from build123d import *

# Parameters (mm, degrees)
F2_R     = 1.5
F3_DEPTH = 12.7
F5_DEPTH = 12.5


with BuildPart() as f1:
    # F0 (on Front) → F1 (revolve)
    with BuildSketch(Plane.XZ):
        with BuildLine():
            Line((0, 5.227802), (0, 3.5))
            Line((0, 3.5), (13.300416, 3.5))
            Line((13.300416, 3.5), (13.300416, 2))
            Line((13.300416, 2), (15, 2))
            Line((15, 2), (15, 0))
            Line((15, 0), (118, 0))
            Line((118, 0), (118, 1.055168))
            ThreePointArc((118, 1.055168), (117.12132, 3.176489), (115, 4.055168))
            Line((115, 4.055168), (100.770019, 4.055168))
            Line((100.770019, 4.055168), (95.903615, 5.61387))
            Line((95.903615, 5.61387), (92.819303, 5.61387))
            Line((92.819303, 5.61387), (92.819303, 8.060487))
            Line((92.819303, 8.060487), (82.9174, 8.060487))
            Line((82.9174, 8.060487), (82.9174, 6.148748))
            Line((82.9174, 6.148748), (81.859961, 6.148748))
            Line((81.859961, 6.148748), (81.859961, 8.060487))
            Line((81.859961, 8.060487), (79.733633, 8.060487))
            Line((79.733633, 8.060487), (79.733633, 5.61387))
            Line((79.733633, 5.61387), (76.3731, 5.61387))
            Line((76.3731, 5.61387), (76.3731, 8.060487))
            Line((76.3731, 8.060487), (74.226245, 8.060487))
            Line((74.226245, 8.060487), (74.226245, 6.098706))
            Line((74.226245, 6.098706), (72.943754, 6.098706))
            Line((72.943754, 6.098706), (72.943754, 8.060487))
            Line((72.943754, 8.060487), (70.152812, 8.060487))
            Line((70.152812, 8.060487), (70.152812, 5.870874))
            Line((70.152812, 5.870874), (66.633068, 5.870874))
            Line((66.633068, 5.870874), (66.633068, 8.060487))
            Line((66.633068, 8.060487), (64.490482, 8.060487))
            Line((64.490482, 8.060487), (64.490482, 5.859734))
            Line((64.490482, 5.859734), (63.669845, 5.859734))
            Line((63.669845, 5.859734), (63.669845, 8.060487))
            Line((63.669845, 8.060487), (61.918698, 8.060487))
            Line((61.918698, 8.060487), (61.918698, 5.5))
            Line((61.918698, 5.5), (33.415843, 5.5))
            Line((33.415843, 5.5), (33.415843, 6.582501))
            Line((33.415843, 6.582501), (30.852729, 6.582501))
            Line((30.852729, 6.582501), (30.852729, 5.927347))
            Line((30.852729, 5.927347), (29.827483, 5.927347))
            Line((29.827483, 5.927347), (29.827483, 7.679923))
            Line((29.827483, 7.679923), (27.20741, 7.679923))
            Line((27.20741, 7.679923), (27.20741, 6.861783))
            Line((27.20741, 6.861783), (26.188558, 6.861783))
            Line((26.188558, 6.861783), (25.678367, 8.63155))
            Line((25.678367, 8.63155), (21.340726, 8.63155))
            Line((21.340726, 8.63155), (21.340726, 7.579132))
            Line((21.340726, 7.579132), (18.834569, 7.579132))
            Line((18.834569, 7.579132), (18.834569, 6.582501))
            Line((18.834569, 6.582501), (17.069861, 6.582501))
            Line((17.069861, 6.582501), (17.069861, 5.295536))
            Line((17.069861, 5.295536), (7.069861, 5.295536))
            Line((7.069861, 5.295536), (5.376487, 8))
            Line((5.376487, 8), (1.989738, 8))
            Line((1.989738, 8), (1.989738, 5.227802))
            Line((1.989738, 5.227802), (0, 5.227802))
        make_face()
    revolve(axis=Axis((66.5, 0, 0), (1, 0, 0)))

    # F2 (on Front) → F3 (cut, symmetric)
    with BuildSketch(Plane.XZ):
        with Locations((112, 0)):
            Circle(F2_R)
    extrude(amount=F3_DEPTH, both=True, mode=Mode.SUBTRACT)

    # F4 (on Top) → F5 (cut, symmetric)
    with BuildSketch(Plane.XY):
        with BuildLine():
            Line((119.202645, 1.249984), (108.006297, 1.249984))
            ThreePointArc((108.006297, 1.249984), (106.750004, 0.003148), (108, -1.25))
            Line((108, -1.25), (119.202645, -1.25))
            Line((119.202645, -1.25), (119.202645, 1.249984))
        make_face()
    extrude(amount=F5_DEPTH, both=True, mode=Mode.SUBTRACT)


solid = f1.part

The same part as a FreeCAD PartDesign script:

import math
import FreeCAD as App
import Part
import Sketcher

V = App.Vector
Q = App.Units.Quantity

doc = App.newDocument("Part")
params = doc.addObject("Spreadsheet::Sheet", "Params")
for row, (alias, value) in enumerate([
    ("sketch1_radius", "2.999999 mm"),
    ("sketch1_width", "103 mm"),
    ("sketch1_width2", "10 mm"),
    ("sketch1_height", "2 mm"),
    ("sketch1_height2", "1.5 mm"),
    ("revolution_angle", "360 deg"),
    ("sketch2_diameter", "3 mm"),
    ("pocket1_length", "25.4 mm"),
    ("sketch3_radius", "1.25 mm"),
    ("pocket2_length", "25 mm"),
], start=1):
    params.set(f"A{row}", alias)
    params.set(f"B{row}", "=" + value)
    params.setAlias(f"B{row}", alias)

body = doc.addObject("PartDesign::Body", "Body")

# Sketch on XZ plane
sketch1 = doc.addObject("Sketcher::SketchObject", "Sketch")
body.addObject(sketch1)
sketch1.AttachmentSupport = (doc.XZ_Plane, [""])
sketch1.MapMode = "FlatFace"
sketch1.addGeometry([
    Part.LineSegment(V(0, 5.227802, 0), V(0, 3.5, 0)),  # 0
    Part.LineSegment(V(0, 3.5, 0), V(13.300416, 3.5, 0)),  # 1
    Part.LineSegment(V(13.300416, 3.5, 0), V(13.300416, 2, 0)),  # 2
    Part.LineSegment(V(13.300416, 2, 0), V(15, 2, 0)),  # 3
    Part.LineSegment(V(15, 2, 0), V(15, 0, 0)),  # 4
    Part.LineSegment(V(15, 0, 0), V(118, 0, 0)),  # 5
    Part.LineSegment(V(118, 0, 0), V(118, 1.055168, 0)),  # 6
    Part.ArcOfCircle(Part.Circle(V(115.000001, 1.055169, 0), V(0, 0, 1), 2.999999), math.radians(-0.00001), math.radians(90.00001)),  # 7
    Part.LineSegment(V(115, 4.055168, 0), V(100.770019, 4.055168, 0)),  # 8
    Part.LineSegment(V(100.770019, 4.055168, 0), V(95.903615, 5.61387, 0)),  # 9
    Part.LineSegment(V(95.903615, 5.61387, 0), V(92.819303, 5.61387, 0)),  # 10
    Part.LineSegment(V(92.819303, 5.61387, 0), V(92.819303, 8.060487, 0)),  # 11
    Part.LineSegment(V(92.819303, 8.060487, 0), V(82.9174, 8.060487, 0)),  # 12
    Part.LineSegment(V(82.9174, 8.060487, 0), V(82.9174, 6.148748, 0)),  # 13
    Part.LineSegment(V(82.9174, 6.148748, 0), V(81.859961, 6.148748, 0)),  # 14
    Part.LineSegment(V(81.859961, 6.148748, 0), V(81.859961, 8.060487, 0)),  # 15
    Part.LineSegment(V(81.859961, 8.060487, 0), V(79.733633, 8.060487, 0)),  # 16
    Part.LineSegment(V(79.733633, 8.060487, 0), V(79.733633, 5.61387, 0)),  # 17
    Part.LineSegment(V(79.733633, 5.61387, 0), V(76.3731, 5.61387, 0)),  # 18
    Part.LineSegment(V(76.3731, 5.61387, 0), V(76.3731, 8.060487, 0)),  # 19
    Part.LineSegment(V(76.3731, 8.060487, 0), V(74.226245, 8.060487, 0)),  # 20
    Part.LineSegment(V(74.226245, 8.060487, 0), V(74.226245, 6.098706, 0)),  # 21
    Part.LineSegment(V(74.226245, 6.098706, 0), V(72.943754, 6.098706, 0)),  # 22
    Part.LineSegment(V(72.943754, 6.098706, 0), V(72.943754, 8.060487, 0)),  # 23
    Part.LineSegment(V(72.943754, 8.060487, 0), V(70.152812, 8.060487, 0)),  # 24
    Part.LineSegment(V(70.152812, 8.060487, 0), V(70.152812, 5.870874, 0)),  # 25
    Part.LineSegment(V(70.152812, 5.870874, 0), V(66.633068, 5.870874, 0)),  # 26
    Part.LineSegment(V(66.633068, 5.870874, 0), V(66.633068, 8.060487, 0)),  # 27
    Part.LineSegment(V(66.633068, 8.060487, 0), V(64.490482, 8.060487, 0)),  # 28
    Part.LineSegment(V(64.490482, 8.060487, 0), V(64.490482, 5.859734, 0)),  # 29
    Part.LineSegment(V(64.490482, 5.859734, 0), V(63.669845, 5.859734, 0)),  # 30
    Part.LineSegment(V(63.669845, 5.859734, 0), V(63.669845, 8.060487, 0)),  # 31
    Part.LineSegment(V(63.669845, 8.060487, 0), V(61.918698, 8.060487, 0)),  # 32
    Part.LineSegment(V(61.918698, 8.060487, 0), V(61.918698, 5.5, 0)),  # 33
    Part.LineSegment(V(61.918698, 5.5, 0), V(33.415843, 5.5, 0)),  # 34
    Part.LineSegment(V(33.415843, 5.5, 0), V(33.415843, 6.582501, 0)),  # 35
    Part.LineSegment(V(33.415843, 6.582501, 0), V(30.852729, 6.582501, 0)),  # 36
    Part.LineSegment(V(30.852729, 6.582501, 0), V(30.852729, 5.927347, 0)),  # 37
    Part.LineSegment(V(30.852729, 5.927347, 0), V(29.827483, 5.927347, 0)),  # 38
    Part.LineSegment(V(29.827483, 5.927347, 0), V(29.827483, 7.679923, 0)),  # 39
    Part.LineSegment(V(29.827483, 7.679923, 0), V(27.20741, 7.679923, 0)),  # 40
    Part.LineSegment(V(27.20741, 7.679923, 0), V(27.20741, 6.861783, 0)),  # 41
    Part.LineSegment(V(27.20741, 6.861783, 0), V(26.188558, 6.861783, 0)),  # 42
    Part.LineSegment(V(26.188558, 6.861783, 0), V(25.678367, 8.63155, 0)),  # 43
    Part.LineSegment(V(25.678367, 8.63155, 0), V(21.340726, 8.63155, 0)),  # 44
    Part.LineSegment(V(21.340726, 8.63155, 0), V(21.340726, 7.579132, 0)),  # 45
    Part.LineSegment(V(21.340726, 7.579132, 0), V(18.834569, 7.579132, 0)),  # 46
    Part.LineSegment(V(18.834569, 7.579132, 0), V(18.834569, 6.582501, 0)),  # 47
    Part.LineSegment(V(18.834569, 6.582501, 0), V(17.069861, 6.582501, 0)),  # 48
    Part.LineSegment(V(17.069861, 6.582501, 0), V(17.069861, 5.295536, 0)),  # 49
    Part.LineSegment(V(17.069861, 5.295536, 0), V(7.069861, 5.295536, 0)),  # 50
    Part.LineSegment(V(7.069861, 5.295536, 0), V(5.376487, 8, 0)),  # 51
    Part.LineSegment(V(5.376487, 8, 0), V(1.989738, 8, 0)),  # 52
    Part.LineSegment(V(1.989738, 8, 0), V(1.989738, 5.227802, 0)),  # 53
    Part.LineSegment(V(1.989738, 5.227802, 0), V(0, 5.227802, 0)),  # 54
], False)
sketch1.addConstraint([
    Sketcher.Constraint("Coincident", 0, 2, 1, 1),
    Sketcher.Constraint("Coincident", 1, 2, 2, 1),
    Sketcher.Constraint("Coincident", 2, 2, 3, 1),
    Sketcher.Constraint("Coincident", 3, 2, 4, 1),
    Sketcher.Constraint("Coincident", 4, 2, 5, 1),
    Sketcher.Constraint("Coincident", 5, 2, 6, 1),
    Sketcher.Constraint("Tangent", 6, 2, 7, 1),
    Sketcher.Constraint("Tangent", 7, 2, 8, 1),
    Sketcher.Constraint("Coincident", 8, 2, 9, 1),
    Sketcher.Constraint("Coincident", 9, 2, 10, 1),
    Sketcher.Constraint("Coincident", 10, 2, 11, 1),
    Sketcher.Constraint("Coincident", 11, 2, 12, 1),
    Sketcher.Constraint("Coincident", 12, 2, 13, 1),
    Sketcher.Constraint("Coincident", 13, 2, 14, 1),
    Sketcher.Constraint("Coincident", 14, 2, 15, 1),
    Sketcher.Constraint("Coincident", 15, 2, 16, 1),
    Sketcher.Constraint("Coincident", 16, 2, 17, 1),
    Sketcher.Constraint("Coincident", 17, 2, 18, 1),
    Sketcher.Constraint("Coincident", 18, 2, 19, 1),
    Sketcher.Constraint("Coincident", 19, 2, 20, 1),
    Sketcher.Constraint("Coincident", 20, 2, 21, 1),
    Sketcher.Constraint("Coincident", 21, 2, 22, 1),
    Sketcher.Constraint("Coincident", 22, 2, 23, 1),
    Sketcher.Constraint("Coincident", 23, 2, 24, 1),
    Sketcher.Constraint("Coincident", 24, 2, 25, 1),
    Sketcher.Constraint("Coincident", 25, 2, 26, 1),
    Sketcher.Constraint("Coincident", 26, 2, 27, 1),
    Sketcher.Constraint("Coincident", 27, 2, 28, 1),
    Sketcher.Constraint("Coincident", 28, 2, 29, 1),
    Sketcher.Constraint("Coincident", 29, 2, 30, 1),
    Sketcher.Constraint("Coincident", 30, 2, 31, 1),
    Sketcher.Constraint("Coincident", 31, 2, 32, 1),
    Sketcher.Constraint("Coincident", 32, 2, 33, 1),
    Sketcher.Constraint("Coincident", 33, 2, 34, 1),
    Sketcher.Constraint("Coincident", 34, 2, 35, 1),
    Sketcher.Constraint("Coincident", 35, 2, 36, 1),
    Sketcher.Constraint("Coincident", 36, 2, 37, 1),
    Sketcher.Constraint("Coincident", 37, 2, 38, 1),
    Sketcher.Constraint("Coincident", 38, 2, 39, 1),
    Sketcher.Constraint("Coincident", 39, 2, 40, 1),
    Sketcher.Constraint("Coincident", 40, 2, 41, 1),
    Sketcher.Constraint("Coincident", 41, 2, 42, 1),
    Sketcher.Constraint("Coincident", 42, 2, 43, 1),
    Sketcher.Constraint("Coincident", 43, 2, 44, 1),
    Sketcher.Constraint("Coincident", 44, 2, 45, 1),
    Sketcher.Constraint("Coincident", 45, 2, 46, 1),
    Sketcher.Constraint("Coincident", 46, 2, 47, 1),
    Sketcher.Constraint("Coincident", 47, 2, 48, 1),
    Sketcher.Constraint("Coincident", 48, 2, 49, 1),
    Sketcher.Constraint("Coincident", 49, 2, 50, 1),
    Sketcher.Constraint("Coincident", 50, 2, 51, 1),
    Sketcher.Constraint("Coincident", 51, 2, 52, 1),
    Sketcher.Constraint("Coincident", 52, 2, 53, 1),
    Sketcher.Constraint("Coincident", 53, 2, 54, 1),
    Sketcher.Constraint("Coincident", 54, 2, 0, 1),
    Sketcher.Constraint("Vertical", 0),
    Sketcher.Constraint("Horizontal", 1),
    Sketcher.Constraint("Vertical", 2),
    Sketcher.Constraint("Horizontal", 3),
    Sketcher.Constraint("Vertical", 4),
    Sketcher.Constraint("Horizontal", 5),
    Sketcher.Constraint("Vertical", 6),
    Sketcher.Constraint("Horizontal", 8),
    Sketcher.Constraint("Horizontal", 10),
    Sketcher.Constraint("Vertical", 11),
    Sketcher.Constraint("Horizontal", 12),
    Sketcher.Constraint("Vertical", 13),
    Sketcher.Constraint("Horizontal", 14),
    Sketcher.Constraint("Vertical", 15),
    Sketcher.Constraint("Horizontal", 16),
    Sketcher.Constraint("Vertical", 17),
    Sketcher.Constraint("Horizontal", 18),
    Sketcher.Constraint("Vertical", 19),
    Sketcher.Constraint("Horizontal", 20),
    Sketcher.Constraint("Vertical", 21),
    Sketcher.Constraint("Horizontal", 22),
    Sketcher.Constraint("Vertical", 23),
    Sketcher.Constraint("Horizontal", 24),
    Sketcher.Constraint("Vertical", 25),
    Sketcher.Constraint("Horizontal", 26),
    Sketcher.Constraint("Vertical", 27),
    Sketcher.Constraint("Horizontal", 28),
    Sketcher.Constraint("Vertical", 29),
    Sketcher.Constraint("Horizontal", 30),
    Sketcher.Constraint("Vertical", 31),
    Sketcher.Constraint("Horizontal", 32),
    Sketcher.Constraint("Vertical", 33),
    Sketcher.Constraint("Horizontal", 34),
    Sketcher.Constraint("Vertical", 35),
    Sketcher.Constraint("Horizontal", 36),
    Sketcher.Constraint("Vertical", 37),
    Sketcher.Constraint("Horizontal", 38),
    Sketcher.Constraint("Vertical", 39),
    Sketcher.Constraint("Horizontal", 40),
    Sketcher.Constraint("Vertical", 41),
    Sketcher.Constraint("Horizontal", 42),
    Sketcher.Constraint("Horizontal", 44),
    Sketcher.Constraint("Vertical", 45),
    Sketcher.Constraint("Horizontal", 46),
    Sketcher.Constraint("Vertical", 47),
    Sketcher.Constraint("Horizontal", 48),
    Sketcher.Constraint("Vertical", 49),
    Sketcher.Constraint("Horizontal", 50),
    Sketcher.Constraint("Horizontal", 52),
    Sketcher.Constraint("Vertical", 53),
    Sketcher.Constraint("Horizontal", 54),
    Sketcher.Constraint("PointOnObject", 0, 2, -2),
    Sketcher.Constraint("PointOnObject", 4, 2, -1),
    Sketcher.Constraint("Horizontal", 12, 2, 15, 2),
    Sketcher.Constraint("Horizontal", 10, 2, 17, 2),
    Sketcher.Constraint("Horizontal", 16, 2, 19, 2),
    Sketcher.Constraint("Horizontal", 20, 2, 23, 2),
    Sketcher.Constraint("Horizontal", 24, 2, 27, 2),
    Sketcher.Constraint("Horizontal", 28, 2, 31, 2),
    Sketcher.Constraint("Horizontal", 36, 2, 47, 2),
    Sketcher.Constraint("Radius", 7, Q("2.999999 mm")),
    Sketcher.Constraint("DistanceX", 5, 1, 5, 2, Q("103 mm")),
    Sketcher.Constraint("DistanceX", 50, 2, 50, 1, Q("10 mm")),
    Sketcher.Constraint("DistanceY", 4, 2, 4, 1, Q("2 mm")),
    Sketcher.Constraint("DistanceY", 2, 2, 2, 1, Q("1.5 mm")),
    Sketcher.Constraint("DistanceX", -1, 1, 7, 3, Q("115.000001 mm")),
    Sketcher.Constraint("DistanceY", -1, 1, 51, 2, Q("8 mm")),
    Sketcher.Constraint("DistanceY", 1, 2, 34, 2, Q("2 mm")),
    Sketcher.Constraint("DistanceY", 0, 2, 0, 1, Q("1.727802 mm")),
    Sketcher.Constraint("DistanceY", 35, 1, 35, 2, Q("1.082501 mm")),
    Sketcher.Constraint("DistanceX", 8, 2, 8, 1, Q("14.229981 mm")),
    Sketcher.Constraint("DistanceX", 10, 2, 10, 1, Q("3.084312 mm")),
    Sketcher.Constraint("DistanceX", 14, 2, 14, 1, Q("1.057439 mm")),
    Sketcher.Constraint("DistanceX", 16, 2, 16, 1, Q("2.126328 mm")),
    Sketcher.Constraint("DistanceX", 22, 2, 22, 1, Q("1.282491 mm")),
    Sketcher.Constraint("DistanceX", 42, 2, 42, 1, Q("1.018852 mm")),
    Sketcher.Constraint("DistanceX", 44, 2, 44, 1, Q("4.337641 mm")),
    Sketcher.Constraint("DistanceX", 52, 2, 52, 1, Q("3.386749 mm")),
    Sketcher.Constraint("DistanceY", 6, 1, 6, 2, Q("1.055168 mm")),
    Sketcher.Constraint("DistanceY", 13, 2, 13, 1, Q("1.911739 mm")),
    Sketcher.Constraint("DistanceY", 21, 2, 21, 1, Q("1.961781 mm")),
    Sketcher.Constraint("DistanceY", 41, 2, 41, 1, Q("0.81814 mm")),
    Sketcher.Constraint("DistanceY", 45, 2, 45, 1, Q("1.052418 mm")),
    Sketcher.Constraint("DistanceY", 47, 2, 47, 1, Q("0.996631 mm")),
    Sketcher.Constraint("DistanceX", -1, 1, 12, 2, Q("82.9174 mm")),
    Sketcher.Constraint("DistanceX", -1, 1, 18, 2, Q("76.3731 mm")),
    Sketcher.Constraint("DistanceY", 7, 3, 9, 2, Q("4.558701 mm")),
    Sketcher.Constraint("DistanceX", 46, 2, 43, 2, Q("6.843798 mm")),
    Sketcher.Constraint("Distance", 43, Q("1.841839 mm")),
    Sketcher.Constraint("Distance", 51, Q("3.190868 mm")),
    Sketcher.Constraint("DistanceX", 1, 1, 1, 2, Q("13.300416 mm")),
    Sketcher.Constraint("DistanceX", 12, 2, 12, 1, Q("9.901903 mm")),
    Sketcher.Constraint("DistanceX", 20, 2, 20, 1, Q("2.146855 mm")),
    Sketcher.Constraint("DistanceX", 24, 2, 24, 1, Q("2.790942 mm")),
    Sketcher.Constraint("DistanceX", 26, 2, 26, 1, Q("3.519744 mm")),
    Sketcher.Constraint("DistanceX", 28, 2, 28, 1, Q("2.142586 mm")),
    Sketcher.Constraint("DistanceX", 30, 2, 30, 1, Q("0.820637 mm")),
    Sketcher.Constraint("DistanceX", 32, 2, 32, 1, Q("1.751147 mm")),
    Sketcher.Constraint("DistanceX", 34, 2, 34, 1, Q("28.502855 mm")),
    Sketcher.Constraint("DistanceX", 36, 2, 36, 1, Q("2.563114 mm")),
    Sketcher.Constraint("DistanceX", 38, 2, 38, 1, Q("1.025246 mm")),
    Sketcher.Constraint("DistanceX", 40, 2, 40, 1, Q("2.620073 mm")),
    Sketcher.Constraint("DistanceX", 48, 2, 48, 1, Q("1.764708 mm")),
    Sketcher.Constraint("DistanceX", 54, 2, 54, 1, Q("1.989738 mm")),
    Sketcher.Constraint("DistanceY", 11, 1, 11, 2, Q("2.446617 mm")),
    Sketcher.Constraint("DistanceY", 25, 2, 25, 1, Q("2.189613 mm")),
    Sketcher.Constraint("DistanceY", 29, 2, 29, 1, Q("2.200753 mm")),
    Sketcher.Constraint("DistanceY", 37, 2, 37, 1, Q("0.655154 mm")),
    Sketcher.Constraint("DistanceY", 39, 1, 39, 2, Q("1.752576 mm")),
])
sketch1.setExpression("Constraints[115]", "Params.sketch1_radius")
sketch1.setExpression("Constraints[116]", "Params.sketch1_width")
sketch1.setExpression("Constraints[117]", "Params.sketch1_width2")
sketch1.setExpression("Constraints[118]", "Params.sketch1_height")
sketch1.setExpression("Constraints[119]", "Params.sketch1_height2")
revolution = doc.addObject("PartDesign::Revolution", "Revolution")
body.addObject(revolution)
revolution.Profile = sketch1
revolution.ReferenceAxis = (sketch1, ["H_Axis"])
revolution.setExpression("Angle", "Params.revolution_angle")

# Sketch on XZ plane
sketch2 = doc.addObject("Sketcher::SketchObject", "Sketch001")
body.addObject(sketch2)
sketch2.AttachmentSupport = (doc.XZ_Plane, [""])
sketch2.MapMode = "FlatFace"
sketch2.addGeometry(Part.Circle(V(112, 0, 0), V(0, 0, 1), 1.5), False)
sketch2.addConstraint([
    Sketcher.Constraint("PointOnObject", 0, 3, -1),
    Sketcher.Constraint("Diameter", 0, Q("3 mm")),
    Sketcher.Constraint("DistanceX", -1, 1, 0, 3, Q("112 mm")),
])
sketch2.setExpression("Constraints[1]", "Params.sketch2_diameter")
pocket1 = doc.addObject("PartDesign::Pocket", "Pocket")
body.addObject(pocket1)
pocket1.Profile = sketch2
pocket1.setExpression("Length", "Params.pocket1_length")
pocket1.Midplane = True

# Sketch on XY plane
sketch3 = doc.addObject("Sketcher::SketchObject", "Sketch002")
body.addObject(sketch3)
sketch3.AttachmentSupport = (doc.XY_Plane, [""])
sketch3.MapMode = "FlatFace"
sketch3.addGeometry([
    Part.LineSegment(V(119.202645, 1.249984, 0), V(108.006297, 1.249984, 0)),
    Part.ArcOfCircle(Part.Circle(V(108, 0, 0), V(0, 0, 1), 1.25), math.radians(89.711364), math.radians(270.000002)),
    Part.LineSegment(V(108, -1.25, 0), V(119.202645, -1.25, 0)),
    Part.LineSegment(V(119.202645, -1.25, 0), V(119.202645, 1.249984, 0)),
], False)
sketch3.addConstraint([
    Sketcher.Constraint("Coincident", 0, 2, 1, 1),
    Sketcher.Constraint("Tangent", 1, 2, 2, 1),
    Sketcher.Constraint("Coincident", 2, 2, 3, 1),
    Sketcher.Constraint("Coincident", 3, 2, 0, 1),
    Sketcher.Constraint("Horizontal", 0),
    Sketcher.Constraint("Horizontal", 2),
    Sketcher.Constraint("Vertical", 3),
    Sketcher.Constraint("PointOnObject", 1, 3, -1),
    Sketcher.Constraint("Radius", 1, Q("1.25 mm")),
    Sketcher.Constraint("DistanceX", -1, 1, 1, 3, Q("108 mm")),
    Sketcher.Constraint("DistanceX", 0, 2, 0, 1, Q("11.196348 mm")),
    Sketcher.Constraint("DistanceX", 2, 1, 2, 2, Q("11.202645 mm")),
])
sketch3.setExpression("Constraints[8]", "Params.sketch3_radius")
pocket2 = doc.addObject("PartDesign::Pocket", "Pocket001")
body.addObject(pocket2)
pocket2.Profile = sketch3
pocket2.setExpression("Length", "Params.pocket2_length")
pocket2.Midplane = True

doc.recompute()
